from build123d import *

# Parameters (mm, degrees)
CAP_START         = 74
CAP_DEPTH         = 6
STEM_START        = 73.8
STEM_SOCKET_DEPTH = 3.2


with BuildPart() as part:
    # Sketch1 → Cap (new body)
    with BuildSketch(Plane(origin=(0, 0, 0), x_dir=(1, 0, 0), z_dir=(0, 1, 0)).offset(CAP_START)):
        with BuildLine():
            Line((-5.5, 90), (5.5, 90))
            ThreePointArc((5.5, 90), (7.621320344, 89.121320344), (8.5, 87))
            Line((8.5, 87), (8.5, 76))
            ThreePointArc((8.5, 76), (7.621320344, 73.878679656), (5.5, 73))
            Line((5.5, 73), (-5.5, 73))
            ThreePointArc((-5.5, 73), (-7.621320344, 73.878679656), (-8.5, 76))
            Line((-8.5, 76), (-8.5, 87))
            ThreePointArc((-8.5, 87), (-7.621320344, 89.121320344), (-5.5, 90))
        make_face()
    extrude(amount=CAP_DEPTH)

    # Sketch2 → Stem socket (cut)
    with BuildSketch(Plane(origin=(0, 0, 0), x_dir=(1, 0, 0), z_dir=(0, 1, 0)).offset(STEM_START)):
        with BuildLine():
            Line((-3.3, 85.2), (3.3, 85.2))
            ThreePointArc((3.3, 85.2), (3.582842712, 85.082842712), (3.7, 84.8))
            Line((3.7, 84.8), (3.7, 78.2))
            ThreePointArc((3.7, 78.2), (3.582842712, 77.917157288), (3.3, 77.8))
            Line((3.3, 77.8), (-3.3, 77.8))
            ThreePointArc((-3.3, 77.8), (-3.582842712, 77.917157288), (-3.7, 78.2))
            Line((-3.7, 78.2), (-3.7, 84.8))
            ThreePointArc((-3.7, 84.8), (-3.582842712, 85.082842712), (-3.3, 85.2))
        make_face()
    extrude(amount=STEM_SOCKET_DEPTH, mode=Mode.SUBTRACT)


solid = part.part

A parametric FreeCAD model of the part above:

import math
import FreeCAD as App
import Part
import Sketcher
from FreeCAD import Vector

doc = App.newDocument("Part")
params = doc.addObject("Spreadsheet::Sheet", "Params")
for row, (alias, value) in enumerate([
    ("sketch1_radius", "3 mm"),
    ("sketch1_width", "11 mm"),
    ("pad1_length", "6 mm"),
    ("sketch2_radius", "0.4 mm"),
    ("sketch2_width", "6.6 mm"),
    ("pocket1_length", "3.2 mm"),
], start=1):
    params.set(f"A{row}", alias)
    params.set(f"B{row}", "=" + value)
    params.setAlias(f"B{row}", alias)

body = doc.addObject("PartDesign::Body", "Body")

sketch1 = body.newObject("Sketcher::SketchObject", "Sketch")
sketch1.AttachmentSupport = (doc.getObject("XZ_Plane"), [""])
sketch1.MapMode = "FlatFace"
sketch1.AttachmentOffset = App.Placement(Vector(0, 0, -74), App.Rotation())
sketch1.addGeometry([
    Part.LineSegment(Vector(5.5, -90, 0), Vector(-5.5, -90, 0)),
    Part.ArcOfCircle(Part.Circle(Vector(-5.5, -87, 0), Vector(0, 0, 1), 3), math.radians(180), math.radians(270)),
    Part.LineSegment(Vector(-8.5, -87, 0), Vector(-8.5, -76, 0)),
    Part.ArcOfCircle(Part.Circle(Vector(-5.5, -76, 0), Vector(0, 0, 1), 3), math.radians(90), math.radians(180)),
    Part.LineSegment(Vector(-5.5, -73, 0), Vector(5.5, -73, 0)),
    Part.ArcOfCircle(Part.Circle(Vector(5.5, -76, 0), Vector(0, 0, 1), 3), math.radians(0), math.radians(90)),
    Part.LineSegment(Vector(8.5, -76, 0), Vector(8.5, -87, 0)),
    Part.ArcOfCircle(Part.Circle(Vector(5.5, -87, 0), Vector(0, 0, 1), 3), math.radians(-90), math.radians(0)),
], False)
sketch1.addConstraint([
    Sketcher.Constraint("Tangent", 0, 2, 1, 2),
    Sketcher.Constraint("Tangent", 1, 1, 2, 1),
    Sketcher.Constraint("Tangent", 2, 2, 3, 2),
    Sketcher.Constraint("Tangent", 3, 1, 4, 1),
    Sketcher.Constraint("Tangent", 4, 2, 5, 2),
    Sketcher.Constraint("Tangent", 5, 1, 6, 1),
    Sketcher.Constraint("Tangent", 6, 2, 7, 2),
    Sketcher.Constraint("Tangent", 7, 1, 0, 1),
    Sketcher.Constraint("Horizontal", 0),
    Sketcher.Constraint("Vertical", 2),
    Sketcher.Constraint("Horizontal", 4),
    Sketcher.Constraint("Vertical", 6),
    Sketcher.Constraint("Equal", 1, 3),
    Sketcher.Constraint("Equal", 3, 5),
    Sketcher.Constraint("Equal", 5, 7),
    Sketcher.Constraint("Equal", 4, 2),
    Sketcher.Constraint("Radius", 1, 3.0),
    Sketcher.Constraint("DistanceX", 0, 2, 0, 1, 11.0),
    Sketcher.Constraint("DistanceY", 1, 3, -1, 1, 87.0),
    Sketcher.Constraint("DistanceX", 1, 3, -1, 1, 5.5),
])
sketch1.setExpression("Constraints[16]", "Params.sketch1_radius")
sketch1.setExpression("Constraints[17]", "Params.sketch1_width")
pad1 = body.newObject("PartDesign::Pad", "Pad")
pad1.Profile = sketch1
pad1.setExpression("Length", "Params.pad1_length")
pad1.Reversed = True

sketch2 = body.newObject("Sketcher::SketchObject", "Sketch001")
sketch2.AttachmentSupport = (doc.getObject("XZ_Plane"), [""])
sketch2.MapMode = "FlatFace"
sketch2.AttachmentOffset = App.Placement(Vector(0, 0, -73.8), App.Rotation())
sketch2.addGeometry([
    Part.LineSegment(Vector(3.3, -85.2, 0), Vector(-3.3, -85.2, 0)),
    Part.ArcOfCircle(Part.Circle(Vector(-3.3, -84.8, 0), Vector(0, 0, 1), 0.4), math.radians(-180), math.radians(-90)),
    Part.LineSegment(Vector(-3.7, -84.8, 0), Vector(-3.7, -78.2, 0)),
    Part.ArcOfCircle(Part.Circle(Vector(-3.3, -78.2, 0), Vector(0, 0, 1), 0.4), math.radians(90), math.radians(180)),
    Part.LineSegment(Vector(-3.3, -77.8, 0), Vector(3.3, -77.8, 0)),
    Part.ArcOfCircle(Part.Circle(Vector(3.3, -78.2, 0), Vector(0, 0, 1), 0.4), math.radians(0), math.radians(90)),
    Part.LineSegment(Vector(3.7, -78.2, 0), Vector(3.7, -84.8, 0)),
    Part.ArcOfCircle(Part.Circle(Vector(3.3, -84.8, 0), Vector(0, 0, 1), 0.4), math.radians(-90), math.radians(0)),
], False)
sketch2.addConstraint([
    Sketcher.Constraint("Tangent", 0, 2, 1, 2),
    Sketcher.Constraint("Tangent", 1, 1, 2, 1),
    Sketcher.Constraint("Tangent", 2, 2, 3, 2),
    Sketcher.Constraint("Tangent", 3, 1, 4, 1),
    Sketcher.Constraint("Tangent", 4, 2, 5, 2),
    Sketcher.Constraint("Tangent", 5, 1, 6, 1),
    Sketcher.Constraint("Tangent", 6, 2, 7, 2),
    Sketcher.Constraint("Tangent", 7, 1, 0, 1),
    Sketcher.Constraint("Horizontal", 0),
    Sketcher.Constraint("Vertical", 2),
    Sketcher.Constraint("Horizontal", 4),
    Sketcher.Constraint("Vertical", 6),
    Sketcher.Constraint("Equal", 1, 3),
    Sketcher.Constraint("Equal", 3, 5),
    Sketcher.Constraint("Equal", 5, 7),
    Sketcher.Constraint("Equal", 4, 2),
    Sketcher.Constraint("Radius", 1, 0.4),
    Sketcher.Constraint("DistanceX", 0, 2, 0, 1, 6.6),
    Sketcher.Constraint("DistanceX", 1, 3, -1, 1, 3.3),
    Sketcher.Constraint("DistanceY", 1, 3, -1, 1, 84.8),
])
sketch2.setExpression("Constraints[16]", "Params.sketch2_radius")
sketch2.setExpression("Constraints[17]", "Params.sketch2_width")
pocket1 = body.newObject("PartDesign::Pocket", "Pocket")
pocket1.Profile = sketch2
pocket1.setExpression("Length", "Params.pocket1_length")

doc.recompute()
